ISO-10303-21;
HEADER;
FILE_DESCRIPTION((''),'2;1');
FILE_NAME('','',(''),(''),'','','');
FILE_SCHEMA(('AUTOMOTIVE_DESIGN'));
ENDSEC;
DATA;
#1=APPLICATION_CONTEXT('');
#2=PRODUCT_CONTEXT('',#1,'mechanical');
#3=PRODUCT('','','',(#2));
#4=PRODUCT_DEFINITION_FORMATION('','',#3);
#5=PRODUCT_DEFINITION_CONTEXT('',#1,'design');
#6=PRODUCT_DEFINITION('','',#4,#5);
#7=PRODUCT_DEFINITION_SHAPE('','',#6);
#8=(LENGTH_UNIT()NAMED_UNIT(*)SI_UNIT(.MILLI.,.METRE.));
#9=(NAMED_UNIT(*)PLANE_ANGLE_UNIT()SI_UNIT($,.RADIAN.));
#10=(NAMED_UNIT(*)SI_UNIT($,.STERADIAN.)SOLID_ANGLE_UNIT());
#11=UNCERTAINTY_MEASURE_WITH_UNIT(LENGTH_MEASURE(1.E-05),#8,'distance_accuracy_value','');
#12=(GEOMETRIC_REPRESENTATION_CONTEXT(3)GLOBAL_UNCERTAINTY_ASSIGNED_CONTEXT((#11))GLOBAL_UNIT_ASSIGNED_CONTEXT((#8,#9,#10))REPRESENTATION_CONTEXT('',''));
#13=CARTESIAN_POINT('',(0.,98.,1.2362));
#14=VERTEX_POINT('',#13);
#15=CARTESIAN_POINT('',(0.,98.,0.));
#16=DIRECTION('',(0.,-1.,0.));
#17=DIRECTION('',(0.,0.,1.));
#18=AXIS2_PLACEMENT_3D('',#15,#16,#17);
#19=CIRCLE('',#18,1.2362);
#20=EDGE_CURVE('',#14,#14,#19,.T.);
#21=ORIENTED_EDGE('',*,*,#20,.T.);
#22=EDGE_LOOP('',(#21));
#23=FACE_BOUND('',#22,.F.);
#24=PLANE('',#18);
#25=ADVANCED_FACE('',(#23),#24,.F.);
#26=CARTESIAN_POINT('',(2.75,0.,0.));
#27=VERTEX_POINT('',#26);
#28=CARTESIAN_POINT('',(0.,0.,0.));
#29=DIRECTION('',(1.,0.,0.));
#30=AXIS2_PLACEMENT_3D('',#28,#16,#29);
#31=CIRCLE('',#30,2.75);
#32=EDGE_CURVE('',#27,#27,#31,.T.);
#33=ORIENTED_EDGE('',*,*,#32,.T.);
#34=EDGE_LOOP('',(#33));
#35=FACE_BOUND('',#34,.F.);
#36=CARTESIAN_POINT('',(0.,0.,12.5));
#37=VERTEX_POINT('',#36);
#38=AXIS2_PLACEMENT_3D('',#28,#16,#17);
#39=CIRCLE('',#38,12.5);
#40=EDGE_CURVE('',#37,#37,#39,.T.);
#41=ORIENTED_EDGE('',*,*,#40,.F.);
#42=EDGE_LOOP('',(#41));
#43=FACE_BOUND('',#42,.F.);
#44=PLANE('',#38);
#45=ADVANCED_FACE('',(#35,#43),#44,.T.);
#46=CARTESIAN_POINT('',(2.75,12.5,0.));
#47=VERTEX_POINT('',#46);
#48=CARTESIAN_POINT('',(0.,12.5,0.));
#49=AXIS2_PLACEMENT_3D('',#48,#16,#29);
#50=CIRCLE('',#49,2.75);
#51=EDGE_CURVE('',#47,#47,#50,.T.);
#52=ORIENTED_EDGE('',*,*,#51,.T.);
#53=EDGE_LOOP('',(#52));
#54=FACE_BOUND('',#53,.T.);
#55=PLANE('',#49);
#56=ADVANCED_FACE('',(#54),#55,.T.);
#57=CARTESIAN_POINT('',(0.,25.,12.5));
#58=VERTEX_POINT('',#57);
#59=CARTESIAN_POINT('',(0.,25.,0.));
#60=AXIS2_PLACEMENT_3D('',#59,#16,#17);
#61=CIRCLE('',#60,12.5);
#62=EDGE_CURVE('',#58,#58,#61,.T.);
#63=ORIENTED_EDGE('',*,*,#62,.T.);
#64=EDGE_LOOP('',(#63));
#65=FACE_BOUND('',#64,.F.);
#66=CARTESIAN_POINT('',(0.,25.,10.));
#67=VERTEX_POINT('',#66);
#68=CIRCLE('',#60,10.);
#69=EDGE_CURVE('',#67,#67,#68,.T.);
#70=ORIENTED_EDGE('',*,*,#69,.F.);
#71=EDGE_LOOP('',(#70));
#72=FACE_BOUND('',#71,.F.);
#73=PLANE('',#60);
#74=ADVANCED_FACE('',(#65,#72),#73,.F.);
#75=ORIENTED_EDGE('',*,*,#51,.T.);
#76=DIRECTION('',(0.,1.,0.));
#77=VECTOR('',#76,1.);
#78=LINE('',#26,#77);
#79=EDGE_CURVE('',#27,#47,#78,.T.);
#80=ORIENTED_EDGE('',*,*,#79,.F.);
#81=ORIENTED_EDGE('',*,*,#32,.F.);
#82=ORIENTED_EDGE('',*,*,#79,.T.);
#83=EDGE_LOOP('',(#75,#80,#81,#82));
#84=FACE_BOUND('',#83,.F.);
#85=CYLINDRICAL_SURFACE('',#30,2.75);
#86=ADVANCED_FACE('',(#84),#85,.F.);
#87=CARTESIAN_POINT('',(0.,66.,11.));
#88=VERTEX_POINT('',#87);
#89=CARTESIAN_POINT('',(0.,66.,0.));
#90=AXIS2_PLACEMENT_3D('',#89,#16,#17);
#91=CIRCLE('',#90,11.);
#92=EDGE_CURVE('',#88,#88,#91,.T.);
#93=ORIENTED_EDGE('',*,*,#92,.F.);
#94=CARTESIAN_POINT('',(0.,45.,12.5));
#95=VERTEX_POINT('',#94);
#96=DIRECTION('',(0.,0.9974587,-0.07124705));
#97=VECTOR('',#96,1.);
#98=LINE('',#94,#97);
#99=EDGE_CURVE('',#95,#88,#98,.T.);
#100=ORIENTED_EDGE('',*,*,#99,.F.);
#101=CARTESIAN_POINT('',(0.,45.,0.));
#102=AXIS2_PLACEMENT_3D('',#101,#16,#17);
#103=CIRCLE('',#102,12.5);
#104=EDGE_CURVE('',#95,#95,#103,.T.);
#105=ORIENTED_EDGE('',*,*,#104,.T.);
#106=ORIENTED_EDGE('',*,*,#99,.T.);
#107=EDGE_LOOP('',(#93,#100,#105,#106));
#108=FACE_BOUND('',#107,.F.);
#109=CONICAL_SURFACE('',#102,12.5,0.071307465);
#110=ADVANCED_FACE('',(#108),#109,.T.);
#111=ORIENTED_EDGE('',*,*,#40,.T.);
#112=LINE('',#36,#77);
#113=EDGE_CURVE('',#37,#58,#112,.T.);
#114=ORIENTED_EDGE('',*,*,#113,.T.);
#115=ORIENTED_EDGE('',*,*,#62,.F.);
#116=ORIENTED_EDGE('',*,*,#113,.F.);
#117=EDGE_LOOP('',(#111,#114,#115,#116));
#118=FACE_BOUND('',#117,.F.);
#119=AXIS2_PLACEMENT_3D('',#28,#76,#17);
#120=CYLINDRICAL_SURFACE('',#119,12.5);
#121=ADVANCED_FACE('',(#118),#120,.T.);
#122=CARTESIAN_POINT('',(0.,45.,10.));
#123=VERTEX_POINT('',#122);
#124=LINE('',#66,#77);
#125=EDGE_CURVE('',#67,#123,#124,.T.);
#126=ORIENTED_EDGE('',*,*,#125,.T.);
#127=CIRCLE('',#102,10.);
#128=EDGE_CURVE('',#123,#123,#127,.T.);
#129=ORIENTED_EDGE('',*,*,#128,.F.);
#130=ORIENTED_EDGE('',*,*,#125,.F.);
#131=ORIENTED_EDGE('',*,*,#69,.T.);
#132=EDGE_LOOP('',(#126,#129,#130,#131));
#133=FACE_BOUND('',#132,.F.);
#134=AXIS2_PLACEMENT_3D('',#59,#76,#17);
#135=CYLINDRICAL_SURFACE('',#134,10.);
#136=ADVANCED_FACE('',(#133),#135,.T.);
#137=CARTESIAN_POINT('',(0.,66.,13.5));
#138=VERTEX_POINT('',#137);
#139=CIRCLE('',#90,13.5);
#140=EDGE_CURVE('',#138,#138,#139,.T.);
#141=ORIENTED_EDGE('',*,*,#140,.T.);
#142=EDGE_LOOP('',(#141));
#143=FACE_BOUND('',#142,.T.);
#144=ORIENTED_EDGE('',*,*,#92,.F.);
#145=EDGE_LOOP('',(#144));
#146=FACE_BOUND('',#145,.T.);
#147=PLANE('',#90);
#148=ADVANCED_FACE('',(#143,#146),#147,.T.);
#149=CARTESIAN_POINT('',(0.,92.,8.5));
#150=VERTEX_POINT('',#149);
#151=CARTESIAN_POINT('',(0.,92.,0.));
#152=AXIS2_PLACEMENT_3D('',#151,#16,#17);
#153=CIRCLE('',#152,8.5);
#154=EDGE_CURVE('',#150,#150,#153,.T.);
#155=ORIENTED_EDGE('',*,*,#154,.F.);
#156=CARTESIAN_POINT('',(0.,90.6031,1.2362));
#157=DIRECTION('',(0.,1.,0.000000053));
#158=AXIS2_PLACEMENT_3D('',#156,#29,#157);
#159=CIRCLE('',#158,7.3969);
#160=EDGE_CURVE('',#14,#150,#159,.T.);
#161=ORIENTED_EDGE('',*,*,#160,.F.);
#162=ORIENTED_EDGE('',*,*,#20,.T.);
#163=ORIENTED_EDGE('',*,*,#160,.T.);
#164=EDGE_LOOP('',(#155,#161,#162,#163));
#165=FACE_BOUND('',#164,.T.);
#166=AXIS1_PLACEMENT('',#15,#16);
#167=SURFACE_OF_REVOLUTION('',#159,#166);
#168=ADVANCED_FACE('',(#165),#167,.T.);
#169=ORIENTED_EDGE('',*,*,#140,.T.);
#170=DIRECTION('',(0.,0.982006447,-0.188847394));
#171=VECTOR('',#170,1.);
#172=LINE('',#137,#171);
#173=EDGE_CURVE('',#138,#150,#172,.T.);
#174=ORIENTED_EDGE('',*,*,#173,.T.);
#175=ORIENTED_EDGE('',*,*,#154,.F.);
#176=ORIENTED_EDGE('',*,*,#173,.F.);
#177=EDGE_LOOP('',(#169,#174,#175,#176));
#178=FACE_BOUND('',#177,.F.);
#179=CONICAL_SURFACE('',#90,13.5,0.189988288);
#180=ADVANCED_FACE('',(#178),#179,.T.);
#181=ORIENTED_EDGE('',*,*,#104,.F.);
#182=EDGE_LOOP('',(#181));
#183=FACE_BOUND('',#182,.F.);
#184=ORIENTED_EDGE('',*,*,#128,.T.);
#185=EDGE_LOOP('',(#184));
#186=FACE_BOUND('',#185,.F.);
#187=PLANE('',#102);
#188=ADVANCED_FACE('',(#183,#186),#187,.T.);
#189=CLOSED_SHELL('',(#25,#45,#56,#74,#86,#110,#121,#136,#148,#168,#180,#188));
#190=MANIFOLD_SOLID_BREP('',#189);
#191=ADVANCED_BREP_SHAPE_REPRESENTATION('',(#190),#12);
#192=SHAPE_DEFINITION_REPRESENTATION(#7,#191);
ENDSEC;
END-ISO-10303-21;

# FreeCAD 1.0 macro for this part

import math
import FreeCAD as App
import Part
import Sketcher
from FreeCAD import Vector

doc = App.newDocument("Part")
body = doc.addObject("PartDesign::Body", "Body")

sketch1 = body.newObject("Sketcher::SketchObject", "Sketch")
sketch1.AttachmentSupport = (doc.getObject("YZ_Plane"), [""])
sketch1.MapMode = "FlatFace"
sketch1.addGeometry([
    Part.LineSegment(Vector(0, 12.5, 0), Vector(0, 0, 0)),
    Part.LineSegment(Vector(0, 0, 0), Vector(98, 0, 0)),
    Part.LineSegment(Vector(98, 0, 0), Vector(98, 1.2362, 0)),
    Part.ArcOfCircle(Part.Circle(Vector(90.6031, 1.2362, 0), Vector(0, 0, 1), 7.3969), math.radians(0), math.radians(79.114356)),
    Part.LineSegment(Vector(92, 8.5, 0), Vector(66, 13.5, 0)),
    Part.LineSegment(Vector(66, 13.5, 0), Vector(66, 11, 0)),
    Part.LineSegment(Vector(66, 11, 0), Vector(45, 12.5, 0)),
    Part.LineSegment(Vector(45, 12.5, 0), Vector(45, 10, 0)),
    Part.LineSegment(Vector(45, 10, 0), Vector(25, 10, 0)),
    Part.LineSegment(Vector(25, 10, 0), Vector(25, 12.5, 0)),
    Part.LineSegment(Vector(25, 12.5, 0), Vector(0, 12.5, 0)),
], False)
sketch1.addConstraint([
    Sketcher.Constraint("Coincident", 0, 2, 1, 1),
    Sketcher.Constraint("Coincident", 1, 2, 2, 1),
    Sketcher.Constraint("Tangent", 2, 2, 3, 1),
    Sketcher.Constraint("Tangent", 3, 2, 4, 1),
    Sketcher.Constraint("Coincident", 4, 2, 5, 1),
    Sketcher.Constraint("Coincident", 5, 2, 6, 1),
    Sketcher.Constraint("Coincident", 6, 2, 7, 1),
    Sketcher.Constraint("Coincident", 7, 2, 8, 1),
    Sketcher.Constraint("Coincident", 8, 2, 9, 1),
    Sketcher.Constraint("Coincident", 9, 2, 10, 1),
    Sketcher.Constraint("Coincident", 10, 2, 0, 1),
    Sketcher.Constraint("Vertical", 0),
    Sketcher.Constraint("Horizontal", 1),
    Sketcher.Constraint("Vertical", 2),
    Sketcher.Constraint("Vertical", 5),
    Sketcher.Constraint("Vertical", 7),
    Sketcher.Constraint("Horizontal", 8),
    Sketcher.Constraint("Vertical", 9),
    Sketcher.Constraint("Horizontal", 10),
    Sketcher.Constraint("Coincident", 0, 2, -1, 1),
    Sketcher.Constraint("Horizontal", 6, 2, 9, 2),
    Sketcher.Constraint("Equal", 5, 7),
    Sketcher.Constraint("DistanceX", 8, 2, 8, 1, 20.0),
    Sketcher.Constraint("DistanceX", 10, 2, 10, 1, 25.0),
    Sketcher.Constraint("DistanceY", 0, 2, 0, 1, 12.5),
    Sketcher.Constraint("DistanceY", -1, 1, 5, 2, 11.0),
    Sketcher.Constraint("DistanceY", -1, 1, 7, 2, 10.0),
    Sketcher.Constraint("Radius", 3, 7.397),
    Sketcher.Constraint("DistanceX", 4, 2, 3, 2, 26.0),
    Sketcher.Constraint("DistanceY", 3, 2, 4, 2, 5.0),
    Sketcher.Constraint("DistanceX", 6, 2, 4, 2, 21.0),
])
revolution = body.newObject("PartDesign::Revolution", "Revolution")
revolution.Profile = sketch1
revolution.ReferenceAxis = (sketch1, ["H_Axis"])
revolution.Angle = 360

sketch2 = body.newObject("Sketcher::SketchObject", "Sketch001")
sketch2.AttachmentSupport = (doc.getObject("XZ_Plane"), [""])
sketch2.MapMode = "FlatFace"
sketch2.addGeometry(Part.Circle(Vector(0, 0, 0), Vector(0, 0, 1), 2.75), False)
sketch2.addConstraint([
    Sketcher.Constraint("Coincident", 0, 3, -1, 1),
    Sketcher.Constraint("Diameter", 0, 5.5),
])
pocket1 = body.newObject("PartDesign::Pocket", "Pocket")
pocket1.Profile = sketch2
pocket1.Length = 12.5

doc.recompute()
